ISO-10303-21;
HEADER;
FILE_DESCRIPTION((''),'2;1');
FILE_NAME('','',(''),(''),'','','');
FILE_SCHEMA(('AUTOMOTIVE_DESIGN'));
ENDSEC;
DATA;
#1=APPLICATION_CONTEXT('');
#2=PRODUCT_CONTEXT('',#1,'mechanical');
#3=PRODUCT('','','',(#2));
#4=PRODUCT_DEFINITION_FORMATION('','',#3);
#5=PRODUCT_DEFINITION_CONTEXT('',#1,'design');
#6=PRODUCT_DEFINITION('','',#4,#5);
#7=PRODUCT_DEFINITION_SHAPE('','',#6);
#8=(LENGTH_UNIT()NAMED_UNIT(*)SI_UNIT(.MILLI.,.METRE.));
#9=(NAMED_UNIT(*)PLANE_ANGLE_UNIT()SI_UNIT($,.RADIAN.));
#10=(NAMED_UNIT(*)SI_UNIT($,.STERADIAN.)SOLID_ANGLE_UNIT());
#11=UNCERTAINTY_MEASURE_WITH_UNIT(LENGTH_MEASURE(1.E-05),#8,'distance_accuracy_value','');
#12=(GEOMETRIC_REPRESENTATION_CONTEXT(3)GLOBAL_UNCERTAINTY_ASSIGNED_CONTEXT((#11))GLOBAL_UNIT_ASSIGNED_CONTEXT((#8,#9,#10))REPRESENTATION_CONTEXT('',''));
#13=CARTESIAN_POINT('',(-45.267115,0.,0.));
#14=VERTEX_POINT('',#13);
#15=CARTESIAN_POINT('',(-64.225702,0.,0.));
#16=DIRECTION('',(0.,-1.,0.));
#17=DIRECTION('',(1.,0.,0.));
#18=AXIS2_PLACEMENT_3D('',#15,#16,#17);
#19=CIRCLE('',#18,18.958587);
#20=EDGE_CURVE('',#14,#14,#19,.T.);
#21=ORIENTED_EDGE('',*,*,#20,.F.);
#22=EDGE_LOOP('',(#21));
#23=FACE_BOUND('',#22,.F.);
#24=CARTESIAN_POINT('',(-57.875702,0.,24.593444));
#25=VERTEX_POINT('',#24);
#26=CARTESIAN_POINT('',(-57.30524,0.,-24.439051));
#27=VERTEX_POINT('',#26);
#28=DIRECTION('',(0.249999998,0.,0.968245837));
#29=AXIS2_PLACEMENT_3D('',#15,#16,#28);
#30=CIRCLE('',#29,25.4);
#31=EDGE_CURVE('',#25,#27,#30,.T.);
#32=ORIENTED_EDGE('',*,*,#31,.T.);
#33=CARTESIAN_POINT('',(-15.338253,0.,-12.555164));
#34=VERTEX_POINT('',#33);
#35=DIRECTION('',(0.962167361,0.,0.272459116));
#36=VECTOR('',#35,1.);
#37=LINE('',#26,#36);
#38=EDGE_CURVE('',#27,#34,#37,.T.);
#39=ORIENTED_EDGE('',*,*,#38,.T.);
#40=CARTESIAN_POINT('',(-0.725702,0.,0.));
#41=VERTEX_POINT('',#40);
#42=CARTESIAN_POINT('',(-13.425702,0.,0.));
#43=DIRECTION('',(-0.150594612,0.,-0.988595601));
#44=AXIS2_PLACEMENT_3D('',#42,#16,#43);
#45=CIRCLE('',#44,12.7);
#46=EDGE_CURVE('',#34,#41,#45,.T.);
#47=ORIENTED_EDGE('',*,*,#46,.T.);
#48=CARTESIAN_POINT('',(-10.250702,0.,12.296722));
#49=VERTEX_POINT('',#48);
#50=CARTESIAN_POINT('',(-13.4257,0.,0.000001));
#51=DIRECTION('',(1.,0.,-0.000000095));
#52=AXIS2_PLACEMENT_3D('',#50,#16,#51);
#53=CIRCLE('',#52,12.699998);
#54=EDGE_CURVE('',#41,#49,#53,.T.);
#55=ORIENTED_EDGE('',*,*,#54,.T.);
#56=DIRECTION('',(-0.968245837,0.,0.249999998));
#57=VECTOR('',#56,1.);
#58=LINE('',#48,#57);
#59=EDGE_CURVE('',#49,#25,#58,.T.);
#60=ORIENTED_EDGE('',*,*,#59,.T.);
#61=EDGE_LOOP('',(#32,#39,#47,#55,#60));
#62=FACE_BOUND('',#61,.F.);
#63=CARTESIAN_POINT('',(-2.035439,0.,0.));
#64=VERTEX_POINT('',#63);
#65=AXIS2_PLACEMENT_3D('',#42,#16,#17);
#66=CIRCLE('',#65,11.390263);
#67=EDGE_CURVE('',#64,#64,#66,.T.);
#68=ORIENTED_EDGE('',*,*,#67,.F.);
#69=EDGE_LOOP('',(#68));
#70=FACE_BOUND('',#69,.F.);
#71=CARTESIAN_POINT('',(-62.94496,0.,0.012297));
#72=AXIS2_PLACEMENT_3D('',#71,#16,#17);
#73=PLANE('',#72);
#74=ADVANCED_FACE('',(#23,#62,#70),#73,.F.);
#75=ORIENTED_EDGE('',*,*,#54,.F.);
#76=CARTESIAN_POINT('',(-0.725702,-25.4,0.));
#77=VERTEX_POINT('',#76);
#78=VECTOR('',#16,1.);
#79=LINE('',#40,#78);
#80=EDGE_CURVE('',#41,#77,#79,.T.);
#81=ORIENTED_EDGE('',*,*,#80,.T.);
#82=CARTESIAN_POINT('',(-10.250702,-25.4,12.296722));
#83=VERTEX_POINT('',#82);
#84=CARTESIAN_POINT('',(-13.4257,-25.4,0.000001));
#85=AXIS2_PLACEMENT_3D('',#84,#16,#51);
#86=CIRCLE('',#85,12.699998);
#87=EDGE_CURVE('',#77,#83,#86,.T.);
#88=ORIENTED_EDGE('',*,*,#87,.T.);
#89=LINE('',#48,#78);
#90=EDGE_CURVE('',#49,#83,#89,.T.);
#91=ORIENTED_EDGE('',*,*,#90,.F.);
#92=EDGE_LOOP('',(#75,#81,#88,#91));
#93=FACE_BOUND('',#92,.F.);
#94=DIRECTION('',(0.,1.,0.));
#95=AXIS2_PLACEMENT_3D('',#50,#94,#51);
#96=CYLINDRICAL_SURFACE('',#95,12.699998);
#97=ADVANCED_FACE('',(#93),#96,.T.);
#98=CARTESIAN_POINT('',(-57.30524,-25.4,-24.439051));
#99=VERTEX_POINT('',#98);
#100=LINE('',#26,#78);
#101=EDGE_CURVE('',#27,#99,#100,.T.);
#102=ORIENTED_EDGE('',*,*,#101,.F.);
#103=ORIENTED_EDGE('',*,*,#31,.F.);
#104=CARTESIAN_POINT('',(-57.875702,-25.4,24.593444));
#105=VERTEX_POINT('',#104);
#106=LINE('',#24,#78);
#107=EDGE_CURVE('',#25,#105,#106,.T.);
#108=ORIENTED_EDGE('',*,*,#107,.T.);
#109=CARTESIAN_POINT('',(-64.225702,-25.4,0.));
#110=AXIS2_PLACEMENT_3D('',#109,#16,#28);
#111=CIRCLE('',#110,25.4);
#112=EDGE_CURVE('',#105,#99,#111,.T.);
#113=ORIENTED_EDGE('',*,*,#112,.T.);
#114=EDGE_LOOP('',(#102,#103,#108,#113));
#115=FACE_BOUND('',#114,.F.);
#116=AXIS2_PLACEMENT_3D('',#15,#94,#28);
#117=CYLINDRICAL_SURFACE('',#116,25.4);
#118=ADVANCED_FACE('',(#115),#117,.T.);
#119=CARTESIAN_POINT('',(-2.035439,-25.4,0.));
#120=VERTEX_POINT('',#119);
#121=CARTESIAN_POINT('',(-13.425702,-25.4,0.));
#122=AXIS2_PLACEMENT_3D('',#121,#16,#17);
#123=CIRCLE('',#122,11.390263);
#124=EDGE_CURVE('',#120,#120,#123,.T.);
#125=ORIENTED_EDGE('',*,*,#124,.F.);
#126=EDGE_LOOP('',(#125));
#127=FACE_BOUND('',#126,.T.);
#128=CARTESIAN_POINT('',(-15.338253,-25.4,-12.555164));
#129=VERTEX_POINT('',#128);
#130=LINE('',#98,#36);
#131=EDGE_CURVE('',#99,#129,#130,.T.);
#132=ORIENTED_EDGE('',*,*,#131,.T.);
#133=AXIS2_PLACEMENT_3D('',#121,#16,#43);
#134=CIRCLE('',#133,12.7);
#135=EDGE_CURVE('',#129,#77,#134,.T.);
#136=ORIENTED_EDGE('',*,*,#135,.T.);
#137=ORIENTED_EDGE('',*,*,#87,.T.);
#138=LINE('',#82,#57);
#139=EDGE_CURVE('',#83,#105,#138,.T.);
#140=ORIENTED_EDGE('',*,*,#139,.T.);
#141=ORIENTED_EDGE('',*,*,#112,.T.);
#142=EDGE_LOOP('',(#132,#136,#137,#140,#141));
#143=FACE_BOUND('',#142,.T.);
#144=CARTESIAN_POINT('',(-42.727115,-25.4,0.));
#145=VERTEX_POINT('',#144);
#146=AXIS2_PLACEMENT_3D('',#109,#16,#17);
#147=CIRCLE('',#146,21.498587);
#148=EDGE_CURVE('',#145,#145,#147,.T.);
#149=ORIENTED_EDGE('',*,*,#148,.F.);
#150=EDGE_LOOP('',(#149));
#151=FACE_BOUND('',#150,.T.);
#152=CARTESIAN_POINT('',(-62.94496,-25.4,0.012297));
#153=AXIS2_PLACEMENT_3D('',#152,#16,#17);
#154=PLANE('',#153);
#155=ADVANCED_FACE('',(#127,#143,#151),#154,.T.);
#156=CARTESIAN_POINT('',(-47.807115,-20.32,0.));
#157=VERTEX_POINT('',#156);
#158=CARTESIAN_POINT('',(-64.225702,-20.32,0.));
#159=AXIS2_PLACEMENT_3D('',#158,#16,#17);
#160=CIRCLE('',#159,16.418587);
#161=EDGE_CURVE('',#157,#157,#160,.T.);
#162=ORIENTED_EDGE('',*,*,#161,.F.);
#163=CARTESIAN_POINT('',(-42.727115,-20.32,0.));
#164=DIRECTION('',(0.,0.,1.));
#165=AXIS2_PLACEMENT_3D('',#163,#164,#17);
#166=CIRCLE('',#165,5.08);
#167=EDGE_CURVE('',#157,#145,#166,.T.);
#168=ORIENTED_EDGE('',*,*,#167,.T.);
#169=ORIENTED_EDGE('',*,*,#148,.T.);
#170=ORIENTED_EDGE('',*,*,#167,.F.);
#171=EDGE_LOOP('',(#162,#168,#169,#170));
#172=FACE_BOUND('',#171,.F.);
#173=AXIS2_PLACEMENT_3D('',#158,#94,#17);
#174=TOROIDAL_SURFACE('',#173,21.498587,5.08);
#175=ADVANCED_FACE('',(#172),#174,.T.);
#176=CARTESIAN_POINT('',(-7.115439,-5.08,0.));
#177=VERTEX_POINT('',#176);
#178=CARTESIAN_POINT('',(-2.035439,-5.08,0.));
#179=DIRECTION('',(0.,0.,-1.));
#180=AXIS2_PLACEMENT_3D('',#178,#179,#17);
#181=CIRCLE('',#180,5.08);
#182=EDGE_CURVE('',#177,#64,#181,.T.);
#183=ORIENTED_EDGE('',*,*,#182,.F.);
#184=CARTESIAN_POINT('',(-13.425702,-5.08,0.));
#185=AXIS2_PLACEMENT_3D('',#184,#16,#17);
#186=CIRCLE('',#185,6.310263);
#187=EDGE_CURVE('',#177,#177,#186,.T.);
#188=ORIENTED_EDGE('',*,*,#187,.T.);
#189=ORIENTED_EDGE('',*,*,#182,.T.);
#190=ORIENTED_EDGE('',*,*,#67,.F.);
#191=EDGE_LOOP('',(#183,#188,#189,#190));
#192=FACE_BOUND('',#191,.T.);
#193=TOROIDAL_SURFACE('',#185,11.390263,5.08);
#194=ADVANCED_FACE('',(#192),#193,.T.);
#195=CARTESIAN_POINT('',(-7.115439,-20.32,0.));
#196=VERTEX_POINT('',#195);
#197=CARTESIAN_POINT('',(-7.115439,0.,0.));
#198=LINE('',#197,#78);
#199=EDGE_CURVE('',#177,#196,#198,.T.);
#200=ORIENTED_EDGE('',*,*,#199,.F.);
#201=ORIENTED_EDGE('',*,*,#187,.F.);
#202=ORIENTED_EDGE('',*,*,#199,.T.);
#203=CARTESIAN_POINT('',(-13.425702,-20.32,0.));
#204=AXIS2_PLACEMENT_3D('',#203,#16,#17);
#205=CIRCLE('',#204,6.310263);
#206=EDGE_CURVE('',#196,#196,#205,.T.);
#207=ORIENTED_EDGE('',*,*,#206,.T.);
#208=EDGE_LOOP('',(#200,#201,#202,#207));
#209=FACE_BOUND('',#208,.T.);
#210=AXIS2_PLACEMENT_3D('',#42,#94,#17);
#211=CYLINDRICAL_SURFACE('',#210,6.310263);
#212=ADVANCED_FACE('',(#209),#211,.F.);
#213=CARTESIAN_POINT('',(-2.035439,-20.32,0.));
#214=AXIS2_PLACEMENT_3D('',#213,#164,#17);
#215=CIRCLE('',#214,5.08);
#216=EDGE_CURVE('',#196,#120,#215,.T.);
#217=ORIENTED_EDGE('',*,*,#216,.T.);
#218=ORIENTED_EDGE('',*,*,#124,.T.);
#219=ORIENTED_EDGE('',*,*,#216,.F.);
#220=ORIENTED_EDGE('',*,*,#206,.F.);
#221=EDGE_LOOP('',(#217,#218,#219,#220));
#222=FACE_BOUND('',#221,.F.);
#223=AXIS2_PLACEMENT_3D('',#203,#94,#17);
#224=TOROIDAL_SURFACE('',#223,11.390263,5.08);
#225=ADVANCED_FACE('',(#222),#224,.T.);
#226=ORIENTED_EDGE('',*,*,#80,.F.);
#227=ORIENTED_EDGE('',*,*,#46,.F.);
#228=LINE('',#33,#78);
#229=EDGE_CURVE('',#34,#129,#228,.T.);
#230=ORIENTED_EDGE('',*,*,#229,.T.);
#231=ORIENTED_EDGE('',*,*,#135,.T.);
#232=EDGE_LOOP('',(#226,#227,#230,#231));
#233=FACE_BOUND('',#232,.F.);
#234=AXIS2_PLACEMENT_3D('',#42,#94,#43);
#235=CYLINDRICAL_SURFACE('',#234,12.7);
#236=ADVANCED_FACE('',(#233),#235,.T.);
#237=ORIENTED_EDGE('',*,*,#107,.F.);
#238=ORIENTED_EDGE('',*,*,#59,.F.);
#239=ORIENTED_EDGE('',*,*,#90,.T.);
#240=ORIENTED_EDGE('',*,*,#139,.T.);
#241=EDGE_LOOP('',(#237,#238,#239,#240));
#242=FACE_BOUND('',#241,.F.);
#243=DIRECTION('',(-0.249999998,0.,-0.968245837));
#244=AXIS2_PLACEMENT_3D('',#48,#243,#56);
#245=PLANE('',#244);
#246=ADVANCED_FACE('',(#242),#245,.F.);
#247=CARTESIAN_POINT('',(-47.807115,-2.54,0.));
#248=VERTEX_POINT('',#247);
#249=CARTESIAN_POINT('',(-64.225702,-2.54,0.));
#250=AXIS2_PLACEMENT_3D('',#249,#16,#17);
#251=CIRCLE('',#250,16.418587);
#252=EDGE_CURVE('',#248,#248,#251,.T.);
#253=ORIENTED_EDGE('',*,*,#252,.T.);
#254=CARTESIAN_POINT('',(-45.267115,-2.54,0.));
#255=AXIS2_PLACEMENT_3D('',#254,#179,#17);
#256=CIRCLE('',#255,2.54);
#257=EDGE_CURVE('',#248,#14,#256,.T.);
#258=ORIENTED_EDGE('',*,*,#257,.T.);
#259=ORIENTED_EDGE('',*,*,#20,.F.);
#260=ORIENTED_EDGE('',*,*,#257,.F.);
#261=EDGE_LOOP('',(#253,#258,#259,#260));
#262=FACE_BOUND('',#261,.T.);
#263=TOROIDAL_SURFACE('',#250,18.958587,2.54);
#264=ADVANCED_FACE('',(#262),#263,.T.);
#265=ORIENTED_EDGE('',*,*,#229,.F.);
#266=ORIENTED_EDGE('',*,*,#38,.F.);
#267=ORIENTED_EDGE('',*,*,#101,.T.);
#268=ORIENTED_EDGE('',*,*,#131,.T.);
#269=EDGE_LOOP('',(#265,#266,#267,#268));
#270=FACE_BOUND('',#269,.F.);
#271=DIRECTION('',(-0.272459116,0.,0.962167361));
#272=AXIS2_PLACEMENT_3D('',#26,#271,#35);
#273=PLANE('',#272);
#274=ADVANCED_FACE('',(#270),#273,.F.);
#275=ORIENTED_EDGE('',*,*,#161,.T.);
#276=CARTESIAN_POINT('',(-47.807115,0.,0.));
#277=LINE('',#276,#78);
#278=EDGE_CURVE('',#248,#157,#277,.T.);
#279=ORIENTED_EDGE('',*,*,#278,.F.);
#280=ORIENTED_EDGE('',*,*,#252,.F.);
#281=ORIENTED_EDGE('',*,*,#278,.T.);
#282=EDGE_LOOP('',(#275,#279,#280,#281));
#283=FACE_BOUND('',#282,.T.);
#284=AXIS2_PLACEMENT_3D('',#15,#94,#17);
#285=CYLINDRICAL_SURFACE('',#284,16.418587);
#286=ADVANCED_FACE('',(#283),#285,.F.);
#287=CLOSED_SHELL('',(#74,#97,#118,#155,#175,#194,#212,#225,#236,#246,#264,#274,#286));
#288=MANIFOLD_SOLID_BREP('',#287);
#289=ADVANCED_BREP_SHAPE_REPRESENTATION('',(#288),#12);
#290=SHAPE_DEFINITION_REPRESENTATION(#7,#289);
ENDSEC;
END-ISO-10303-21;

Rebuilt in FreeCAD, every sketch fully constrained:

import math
import FreeCAD as App
import Part
import Sketcher

V = App.Vector
Q = App.Units.Quantity


def edges_at(feature, points):
    """Names of the edges that pass closest to the given points."""
    edges = feature.Shape.Edges
    near = lambda p: min(range(len(edges)), key=lambda i: edges[i].distToShape(Part.Vertex(*p))[0])
    return sorted({f"Edge{near(p) + 1}" for p in points})

doc = App.newDocument("Part")
body = doc.addObject("PartDesign::Body", "Body")

# Sketch on XZ plane
sketch1 = doc.addObject("Sketcher::SketchObject", "Sketch")
body.addObject(sketch1)
sketch1.AttachmentSupport = (doc.XZ_Plane, [""])
sketch1.MapMode = "FlatFace"
sketch1.addGeometry([
    Part.ArcOfCircle(Part.Circle(V(-64, 0, 0), V(0, 0, 1), 25), math.radians(76), math.radians(286)),  # 0
    Part.LineSegment(V(-57, -24, 0), V(-15, -13, 0)),  # 1
    Part.ArcOfCircle(Part.Circle(V(-13, 0, 0), V(0, 0, 1), 13), math.radians(-99), math.radians(0)),  # 2
    Part.ArcOfCircle(Part.Circle(V(-13, 0, 0), V(0, 0, 1), 13), math.radians(0), math.radians(76)),  # 3
    Part.LineSegment(V(-10, 12, 0), V(-58, 25, 0)),  # 4
    Part.Circle(V(-64, 0, 0), V(0, 0, 1), 16),  # 5
    Part.Circle(V(-13, 0, 0), V(0, 0, 1), 6),  # 6
], False)
sketch1.addConstraint([
    Sketcher.Constraint("Tangent", 0, 2, 1, 1),
    Sketcher.Constraint("Coincident", 1, 2, 2, 1),
    Sketcher.Constraint("Tangent", 2, 2, 3, 1),
    Sketcher.Constraint("Tangent", 3, 2, 4, 1),
    Sketcher.Constraint("Tangent", 4, 2, 0, 1),
    Sketcher.Constraint("Coincident", 5, 3, 0, 3),
    Sketcher.Constraint("Coincident", 6, 3, 2, 3),
    Sketcher.Constraint("Equal", 2, 3),
    Sketcher.Constraint("PointOnObject", 0, 3, -1),
    Sketcher.Constraint("PointOnObject", 2, 3, -1),
    Sketcher.Constraint("PointOnObject", 2, 2, -1),
    Sketcher.Constraint("Radius", 0, Q("1 in")),
    Sketcher.Constraint("Radius", 2, Q("0.5 in")),
    Sketcher.Constraint("DistanceX", 0, 3, 2, 3, Q("2 in")),
    Sketcher.Constraint("Diameter", 5, Q("32.837174 mm")),
    Sketcher.Constraint("Diameter", 6, Q("12.620526 mm")),
    Sketcher.Constraint("DistanceX", 0, 3, -1, 1, Q("64.225702 mm")),
    Sketcher.Constraint("Distance", 1, Q("43.617138 mm")),
])
pad1 = doc.addObject("PartDesign::Pad", "Pad")
body.addObject(pad1)
pad1.Profile = sketch1
pad1.Length = Q("1 in")
doc.recompute()

fillet = doc.addObject("PartDesign::Fillet", "Fillet")
body.addObject(fillet)
fillet.Base = (pad1, edges_at(pad1, [
    (-80.644, -25.4, 0),
    (-7.115, -12.7, 0),
    (-19.736, 0, 0),
    (-19.736, -25.4, 0),
]))
fillet.Radius = Q("0.2 in")
doc.recompute()

fillet2 = doc.addObject("PartDesign::Fillet", "Fillet001")
body.addObject(fillet2)
fillet2.Base = (fillet, edges_at(fillet, [(-80.644, 0, 0)]))
fillet2.Radius = Q("0.1 in")

doc.recompute()
